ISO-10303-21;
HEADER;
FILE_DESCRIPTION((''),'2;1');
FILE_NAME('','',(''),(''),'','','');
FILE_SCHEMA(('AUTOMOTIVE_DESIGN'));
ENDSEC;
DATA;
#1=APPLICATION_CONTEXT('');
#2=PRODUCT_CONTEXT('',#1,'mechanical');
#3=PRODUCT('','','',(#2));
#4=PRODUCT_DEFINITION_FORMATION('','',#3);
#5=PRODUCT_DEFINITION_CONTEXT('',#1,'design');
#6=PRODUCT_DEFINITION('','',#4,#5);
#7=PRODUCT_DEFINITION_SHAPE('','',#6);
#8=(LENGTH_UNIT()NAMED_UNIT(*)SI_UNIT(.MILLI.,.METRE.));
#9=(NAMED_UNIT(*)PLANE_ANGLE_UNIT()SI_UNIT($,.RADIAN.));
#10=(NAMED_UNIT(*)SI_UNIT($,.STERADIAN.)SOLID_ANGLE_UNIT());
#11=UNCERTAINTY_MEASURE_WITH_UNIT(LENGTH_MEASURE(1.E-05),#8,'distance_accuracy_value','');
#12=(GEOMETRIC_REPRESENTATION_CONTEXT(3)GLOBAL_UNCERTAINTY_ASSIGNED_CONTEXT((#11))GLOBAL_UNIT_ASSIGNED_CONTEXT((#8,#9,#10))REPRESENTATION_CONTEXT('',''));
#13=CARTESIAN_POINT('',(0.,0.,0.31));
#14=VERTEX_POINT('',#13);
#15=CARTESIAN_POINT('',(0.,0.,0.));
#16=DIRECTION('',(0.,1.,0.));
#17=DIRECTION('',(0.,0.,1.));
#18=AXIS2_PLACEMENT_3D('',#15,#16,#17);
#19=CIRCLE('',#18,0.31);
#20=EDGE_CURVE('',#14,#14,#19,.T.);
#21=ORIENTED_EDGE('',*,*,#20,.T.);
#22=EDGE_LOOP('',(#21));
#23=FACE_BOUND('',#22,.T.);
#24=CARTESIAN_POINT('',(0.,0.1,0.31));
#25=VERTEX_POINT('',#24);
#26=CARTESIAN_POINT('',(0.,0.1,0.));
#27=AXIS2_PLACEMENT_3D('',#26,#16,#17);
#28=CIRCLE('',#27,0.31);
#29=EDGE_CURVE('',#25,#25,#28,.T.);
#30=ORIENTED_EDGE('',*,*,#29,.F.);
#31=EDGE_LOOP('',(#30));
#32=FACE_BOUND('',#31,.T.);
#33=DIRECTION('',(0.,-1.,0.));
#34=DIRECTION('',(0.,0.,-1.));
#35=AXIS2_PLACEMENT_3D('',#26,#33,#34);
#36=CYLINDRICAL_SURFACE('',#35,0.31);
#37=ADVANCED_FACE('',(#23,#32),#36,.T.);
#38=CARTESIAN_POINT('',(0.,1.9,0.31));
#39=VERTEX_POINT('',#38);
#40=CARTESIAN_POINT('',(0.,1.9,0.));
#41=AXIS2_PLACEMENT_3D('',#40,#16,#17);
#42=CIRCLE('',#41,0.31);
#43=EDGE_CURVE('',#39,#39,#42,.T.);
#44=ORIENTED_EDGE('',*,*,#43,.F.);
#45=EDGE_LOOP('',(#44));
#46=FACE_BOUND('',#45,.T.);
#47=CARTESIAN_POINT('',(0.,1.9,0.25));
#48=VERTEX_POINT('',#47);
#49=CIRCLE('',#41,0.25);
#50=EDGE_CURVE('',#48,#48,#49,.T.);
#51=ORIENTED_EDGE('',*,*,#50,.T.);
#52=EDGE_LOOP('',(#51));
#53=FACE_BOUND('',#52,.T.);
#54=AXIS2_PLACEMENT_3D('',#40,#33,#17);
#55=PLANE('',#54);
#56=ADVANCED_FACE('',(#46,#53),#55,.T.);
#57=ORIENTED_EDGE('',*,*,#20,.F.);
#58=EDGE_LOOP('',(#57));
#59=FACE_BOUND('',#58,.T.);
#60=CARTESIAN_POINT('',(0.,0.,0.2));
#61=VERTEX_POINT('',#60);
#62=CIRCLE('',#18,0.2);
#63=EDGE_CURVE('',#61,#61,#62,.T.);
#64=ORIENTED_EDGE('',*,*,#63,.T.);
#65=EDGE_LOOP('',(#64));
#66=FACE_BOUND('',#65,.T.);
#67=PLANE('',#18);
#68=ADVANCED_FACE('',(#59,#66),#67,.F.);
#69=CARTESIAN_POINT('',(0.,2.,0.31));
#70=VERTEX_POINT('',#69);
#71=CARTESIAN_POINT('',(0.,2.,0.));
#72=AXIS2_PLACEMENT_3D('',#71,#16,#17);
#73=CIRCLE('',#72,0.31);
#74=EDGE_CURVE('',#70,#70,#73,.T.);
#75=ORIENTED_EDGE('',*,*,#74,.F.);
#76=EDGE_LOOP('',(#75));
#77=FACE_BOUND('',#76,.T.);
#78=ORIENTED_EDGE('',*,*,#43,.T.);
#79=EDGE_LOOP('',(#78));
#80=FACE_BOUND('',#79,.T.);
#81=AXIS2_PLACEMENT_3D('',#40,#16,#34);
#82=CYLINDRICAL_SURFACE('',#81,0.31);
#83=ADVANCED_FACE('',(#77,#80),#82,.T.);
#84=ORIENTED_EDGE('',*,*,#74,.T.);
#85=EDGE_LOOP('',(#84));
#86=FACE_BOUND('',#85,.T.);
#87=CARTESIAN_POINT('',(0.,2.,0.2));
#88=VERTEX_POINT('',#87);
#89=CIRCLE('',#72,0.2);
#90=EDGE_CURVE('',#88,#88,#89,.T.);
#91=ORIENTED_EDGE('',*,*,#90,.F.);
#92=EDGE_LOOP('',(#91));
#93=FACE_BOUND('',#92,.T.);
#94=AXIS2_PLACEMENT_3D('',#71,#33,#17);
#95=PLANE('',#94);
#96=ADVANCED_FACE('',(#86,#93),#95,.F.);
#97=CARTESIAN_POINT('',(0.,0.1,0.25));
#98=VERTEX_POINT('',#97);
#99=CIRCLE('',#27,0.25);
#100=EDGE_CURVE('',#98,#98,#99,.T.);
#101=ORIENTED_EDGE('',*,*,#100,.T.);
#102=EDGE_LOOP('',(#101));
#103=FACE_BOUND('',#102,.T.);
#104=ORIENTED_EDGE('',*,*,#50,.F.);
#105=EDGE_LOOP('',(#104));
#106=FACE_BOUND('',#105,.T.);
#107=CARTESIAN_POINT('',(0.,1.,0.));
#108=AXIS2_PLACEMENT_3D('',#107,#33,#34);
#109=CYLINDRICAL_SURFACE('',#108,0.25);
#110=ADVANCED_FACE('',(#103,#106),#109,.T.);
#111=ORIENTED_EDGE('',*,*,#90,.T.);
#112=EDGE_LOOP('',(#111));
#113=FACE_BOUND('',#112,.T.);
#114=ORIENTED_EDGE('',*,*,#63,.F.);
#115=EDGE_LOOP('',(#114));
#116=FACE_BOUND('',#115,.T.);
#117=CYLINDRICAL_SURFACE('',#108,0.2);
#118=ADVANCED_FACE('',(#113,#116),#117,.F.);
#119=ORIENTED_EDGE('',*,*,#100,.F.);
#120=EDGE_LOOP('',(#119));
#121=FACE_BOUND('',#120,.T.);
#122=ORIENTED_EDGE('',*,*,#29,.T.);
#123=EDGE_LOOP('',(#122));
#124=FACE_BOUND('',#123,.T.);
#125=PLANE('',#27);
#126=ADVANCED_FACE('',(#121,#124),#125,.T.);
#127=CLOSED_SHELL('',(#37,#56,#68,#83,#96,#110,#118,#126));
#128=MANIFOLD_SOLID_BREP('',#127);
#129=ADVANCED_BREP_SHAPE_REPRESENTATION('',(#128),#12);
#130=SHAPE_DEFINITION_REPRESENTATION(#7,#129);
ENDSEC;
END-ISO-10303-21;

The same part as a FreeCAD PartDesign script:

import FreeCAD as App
import Part
import Sketcher

V = App.Vector
Q = App.Units.Quantity

doc = App.newDocument("Part")
params = doc.addObject("Spreadsheet::Sheet", "Params")
for row, (alias, value) in enumerate([
    ("sketch1_diameter", "0.5 mm"),
    ("sketch1_diameter2", "0.4 mm"),
    ("sketch2_height", "1 mm"),
    ("sketch3_diameter", "0.62 mm"),
    ("sketch3_diameter2", "0.42 mm"),
    ("sketch4_height", "0.1 mm"),
], start=1):
    params.set(f"A{row}", alias)
    params.set(f"B{row}", "=" + value)
    params.setAlias(f"B{row}", alias)

body = doc.addObject("PartDesign::Body", "Body")

# Sketch on XZ plane
sketch1 = doc.addObject("Sketcher::SketchObject", "Sketch")
body.addObject(sketch1)
sketch1.AttachmentSupport = (doc.XZ_Plane, [""])
sketch1.MapMode = "FlatFace"
sketch1.addGeometry(Part.Circle(V(0, 0, 0), V(0, 0, 1), 0.25), False)
sketch1.addGeometry(Part.Circle(V(0, 0, 0), V(0, 0, 1), 0.2), False)
sketch1.addConstraint(Sketcher.Constraint("Coincident", 0, 3, -1, 1))
sketch1.addConstraint(Sketcher.Constraint("Coincident", 1, 3, -1, 1))
sketch1.addConstraint(Sketcher.Constraint("Diameter", 0, Q("0.5 mm")))
sketch1.addConstraint(Sketcher.Constraint("Diameter", 1, Q("0.4 mm")))
sketch1.setExpression("Constraints[2]", "Params.sketch1_diameter")
sketch1.setExpression("Constraints[3]", "Params.sketch1_diameter2")

# Sketch on XY plane
sketch2 = doc.addObject("Sketcher::SketchObject", "Sketch001")
body.addObject(sketch2)
sketch2.AttachmentSupport = (doc.XY_Plane, [""])
sketch2.MapMode = "FlatFace"
sketch2.addGeometry(Part.LineSegment(V(0, 0, 0), V(0, 1, 0)), False)
sketch2.addConstraint(Sketcher.Constraint("Vertical", 0))
sketch2.addConstraint(Sketcher.Constraint("Coincident", 0, 1, -1, 1))
sketch2.addConstraint(Sketcher.Constraint("DistanceY", 0, 1, 0, 2, Q("1 mm")))
sketch2.setExpression("Constraints[2]", "Params.sketch2_height")
doc.recompute()

additivepipe = doc.addObject("PartDesign::AdditivePipe", "AdditivePipe")
body.addObject(additivepipe)
additivepipe.Profile = sketch1
additivepipe.Spine = (sketch2, ["Edge1"])

# Sketch on XZ plane
sketch3 = doc.addObject("Sketcher::SketchObject", "Sketch002")
body.addObject(sketch3)
sketch3.AttachmentSupport = (doc.XZ_Plane, [""])
sketch3.MapMode = "FlatFace"
sketch3.addGeometry(Part.Circle(V(0, 0, 0), V(0, 0, 1), 0.31), False)
sketch3.addGeometry(Part.Circle(V(0, 0, 0), V(0, 0, 1), 0.21), False)
sketch3.addConstraint(Sketcher.Constraint("Coincident", 0, 3, -1, 1))
sketch3.addConstraint(Sketcher.Constraint("Coincident", 1, 3, -1, 1))
sketch3.addConstraint(Sketcher.Constraint("Diameter", 0, Q("0.62 mm")))
sketch3.addConstraint(Sketcher.Constraint("Diameter", 1, Q("0.42 mm")))
sketch3.setExpression("Constraints[2]", "Params.sketch3_diameter")
sketch3.setExpression("Constraints[3]", "Params.sketch3_diameter2")

# Sketch on XY plane
sketch4 = doc.addObject("Sketcher::SketchObject", "Sketch003")
body.addObject(sketch4)
sketch4.AttachmentSupport = (doc.XY_Plane, [""])
sketch4.MapMode = "FlatFace"
sketch4.addGeometry(Part.LineSegment(V(0, 0, 0), V(0, 0.1, 0)), False)
sketch4.addConstraint(Sketcher.Constraint("Vertical", 0))
sketch4.addConstraint(Sketcher.Constraint("Coincident", 0, 1, -1, 1))
sketch4.addConstraint(Sketcher.Constraint("DistanceY", 0, 1, 0, 2, Q("0.1 mm")))
sketch4.setExpression("Constraints[2]", "Params.sketch4_height")
doc.recompute()

additivepipe2 = doc.addObject("PartDesign::AdditivePipe", "AdditivePipe001")
body.addObject(additivepipe2)
additivepipe2.Profile = sketch3
additivepipe2.Spine = (sketch4, ["Edge1"])
body2 = doc.addObject("PartDesign::Body", "Body001")
doc.recompute()

body2.BaseFeature = body
doc.recompute()

mirroring = doc.addObject("Part::Mirroring", "Mirroring")
mirroring.Source = body
mirroring.Base = V(0, 1, 0)
mirroring.Normal = V(0, 1, 0)
body3 = doc.addObject("PartDesign::Body", "Body002")
body3.BaseFeature = mirroring
boolean = doc.addObject("PartDesign::Boolean", "Boolean")
body2.addObject(boolean)
boolean.Type = "Fuse"
boolean.addObjects([body3])
doc.recompute()
mirroring.Visibility = False

doc.recompute()
